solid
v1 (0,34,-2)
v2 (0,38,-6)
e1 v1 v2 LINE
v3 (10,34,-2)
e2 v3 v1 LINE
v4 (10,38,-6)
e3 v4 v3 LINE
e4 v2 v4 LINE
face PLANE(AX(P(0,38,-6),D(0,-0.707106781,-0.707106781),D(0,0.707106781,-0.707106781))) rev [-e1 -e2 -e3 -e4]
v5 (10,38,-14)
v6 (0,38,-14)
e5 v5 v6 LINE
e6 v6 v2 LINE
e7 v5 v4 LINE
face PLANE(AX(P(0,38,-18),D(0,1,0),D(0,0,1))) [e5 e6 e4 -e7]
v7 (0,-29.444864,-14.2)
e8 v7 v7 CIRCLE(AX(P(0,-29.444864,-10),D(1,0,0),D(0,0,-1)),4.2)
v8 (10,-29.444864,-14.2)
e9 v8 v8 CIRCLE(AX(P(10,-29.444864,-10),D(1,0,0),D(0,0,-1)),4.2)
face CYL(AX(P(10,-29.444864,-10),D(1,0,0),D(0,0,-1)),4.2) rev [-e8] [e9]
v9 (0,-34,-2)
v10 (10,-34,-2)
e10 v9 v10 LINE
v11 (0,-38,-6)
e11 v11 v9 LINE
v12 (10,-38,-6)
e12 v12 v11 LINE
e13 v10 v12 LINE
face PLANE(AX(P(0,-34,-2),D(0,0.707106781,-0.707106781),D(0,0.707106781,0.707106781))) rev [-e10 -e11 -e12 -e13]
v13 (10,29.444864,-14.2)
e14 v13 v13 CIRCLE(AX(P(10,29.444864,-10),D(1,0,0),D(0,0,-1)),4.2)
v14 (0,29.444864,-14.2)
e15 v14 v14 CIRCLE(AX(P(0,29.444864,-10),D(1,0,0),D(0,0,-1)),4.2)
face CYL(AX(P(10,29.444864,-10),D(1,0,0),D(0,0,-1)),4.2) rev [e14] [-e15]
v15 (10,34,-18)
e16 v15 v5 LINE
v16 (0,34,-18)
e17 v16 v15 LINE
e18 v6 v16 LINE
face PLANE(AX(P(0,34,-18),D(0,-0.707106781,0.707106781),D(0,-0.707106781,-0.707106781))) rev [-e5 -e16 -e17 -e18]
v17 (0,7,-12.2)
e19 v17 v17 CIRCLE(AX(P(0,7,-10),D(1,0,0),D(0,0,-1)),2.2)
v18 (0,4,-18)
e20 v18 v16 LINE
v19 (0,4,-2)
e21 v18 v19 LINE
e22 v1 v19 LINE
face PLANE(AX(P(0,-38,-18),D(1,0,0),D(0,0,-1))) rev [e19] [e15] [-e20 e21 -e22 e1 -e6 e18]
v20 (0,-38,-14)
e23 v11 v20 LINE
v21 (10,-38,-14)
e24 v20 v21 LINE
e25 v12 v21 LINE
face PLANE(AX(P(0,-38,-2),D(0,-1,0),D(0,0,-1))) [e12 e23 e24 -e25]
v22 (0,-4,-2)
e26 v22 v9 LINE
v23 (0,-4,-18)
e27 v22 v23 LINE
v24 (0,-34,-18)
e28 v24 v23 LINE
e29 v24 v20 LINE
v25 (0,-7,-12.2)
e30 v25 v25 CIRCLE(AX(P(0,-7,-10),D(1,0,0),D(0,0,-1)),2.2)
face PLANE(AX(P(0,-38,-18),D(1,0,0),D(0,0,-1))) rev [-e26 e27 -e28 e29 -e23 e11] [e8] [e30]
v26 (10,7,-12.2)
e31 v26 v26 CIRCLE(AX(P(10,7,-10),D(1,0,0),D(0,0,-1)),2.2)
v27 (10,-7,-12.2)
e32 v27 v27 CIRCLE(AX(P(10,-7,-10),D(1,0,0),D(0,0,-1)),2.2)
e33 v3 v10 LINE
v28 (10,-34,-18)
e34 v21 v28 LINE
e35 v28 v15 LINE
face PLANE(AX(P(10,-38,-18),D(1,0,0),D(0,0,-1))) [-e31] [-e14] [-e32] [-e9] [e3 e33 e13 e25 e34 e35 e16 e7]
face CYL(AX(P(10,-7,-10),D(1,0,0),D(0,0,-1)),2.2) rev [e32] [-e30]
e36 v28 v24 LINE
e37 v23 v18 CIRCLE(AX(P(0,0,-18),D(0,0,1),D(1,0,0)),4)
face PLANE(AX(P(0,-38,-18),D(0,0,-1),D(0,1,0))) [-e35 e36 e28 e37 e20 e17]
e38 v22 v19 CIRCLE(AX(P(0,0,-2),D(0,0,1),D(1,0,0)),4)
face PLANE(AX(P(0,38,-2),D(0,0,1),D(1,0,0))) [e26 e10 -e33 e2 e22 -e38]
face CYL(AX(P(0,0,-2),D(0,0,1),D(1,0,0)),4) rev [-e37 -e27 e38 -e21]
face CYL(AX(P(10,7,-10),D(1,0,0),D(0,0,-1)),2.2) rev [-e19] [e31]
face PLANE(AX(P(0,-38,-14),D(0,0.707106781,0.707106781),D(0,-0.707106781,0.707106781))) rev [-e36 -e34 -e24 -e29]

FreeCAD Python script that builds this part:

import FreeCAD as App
import Part
import Sketcher


def edges_at(feature, points):
    """Names of the edges that pass closest to the given points."""
    edges = feature.Shape.Edges
    near = lambda p: min(range(len(edges)), key=lambda i: edges[i].distToShape(Part.Vertex(*p))[0])
    return sorted({f"Edge{near(p) + 1}" for p in points})

doc = App.newDocument("Part")
body = doc.addObject("PartDesign::Body", "Body")

# Sketch on YZ plane
sketch1 = body.newObject("Sketcher::SketchObject", "Sketch")
sketch1.AttachmentSupport = (doc.getObject("YZ_Plane"), [""])
sketch1.MapMode = "FlatFace"
sketch1.AttachmentOffset = App.Placement(App.Vector(0, 0, 10), App.Rotation())
sketch1.addGeometry([
    Part.LineSegment(App.Vector(38, -2, 0), App.Vector(-38, -2, 0)),
    Part.LineSegment(App.Vector(-38, -2, 0), App.Vector(-38, -18, 0)),
    Part.LineSegment(App.Vector(-38, -18, 0), App.Vector(38, -18, 0)),
    Part.LineSegment(App.Vector(38, -18, 0), App.Vector(38, -2, 0)),
], False)
sketch1.addConstraint([
    Sketcher.Constraint("Coincident", 0, 2, 1, 1),
    Sketcher.Constraint("Coincident", 1, 2, 2, 1),
    Sketcher.Constraint("Coincident", 2, 2, 3, 1),
    Sketcher.Constraint("Coincident", 3, 2, 0, 1),
    Sketcher.Constraint("Horizontal", 0),
    Sketcher.Constraint("Vertical", 1),
    Sketcher.Constraint("Horizontal", 2),
    Sketcher.Constraint("Vertical", 3),
    Sketcher.Constraint("DistanceX", 0, 2, 0, 1, 76.0),
    Sketcher.Constraint("DistanceY", 1, 2, 1, 1, 16.0),
    Sketcher.Constraint("DistanceX", 0, 2, -1, 1, 38.0),
    Sketcher.Constraint("DistanceY", 0, 2, -1, 1, 2.0),
])
pad1 = body.newObject("PartDesign::Pad", "Pad")
pad1.Profile = sketch1
pad1.Length = 10
pad1.Reversed = True

# Sketch on YZ plane
sketch2 = body.newObject("Sketcher::SketchObject", "Sketch001")
sketch2.AttachmentSupport = (doc.getObject("YZ_Plane"), [""])
sketch2.MapMode = "FlatFace"
sketch2.AttachmentOffset = App.Placement(App.Vector(0, 0, 10), App.Rotation())
sketch2.addGeometry(Part.Circle(App.Vector(-7, -10, 0), App.Vector(0, 0, 1), 2.2), False)
sketch2.addConstraint([
    Sketcher.Constraint("Diameter", 0, 4.4),
    Sketcher.Constraint("DistanceX", 0, 3, -1, 1, 7.0),
    Sketcher.Constraint("DistanceY", 0, 3, -1, 1, 10.0),
])
doc.recompute()
hole = body.newObject("PartDesign::Hole", "Hole")
hole.Profile = sketch2
hole.ThreadType = "None"
hole.Diameter = 4.4
hole.DepthType = "ThroughAll"

# Sketch on YZ plane
sketch3 = body.newObject("Sketcher::SketchObject", "Sketch002")
sketch3.AttachmentSupport = (doc.getObject("YZ_Plane"), [""])
sketch3.MapMode = "FlatFace"
sketch3.AttachmentOffset = App.Placement(App.Vector(0, 0, 10), App.Rotation())
sketch3.addGeometry(Part.Circle(App.Vector(7, -10, 0), App.Vector(0, 0, 1), 2.2), False)
sketch3.addConstraint([
    Sketcher.Constraint("Diameter", 0, 4.4),
    Sketcher.Constraint("DistanceX", -1, 1, 0, 3, 7.0),
    Sketcher.Constraint("DistanceY", 0, 3, -1, 1, 10.0),
])
doc.recompute()
hole2 = body.newObject("PartDesign::Hole", "Hole001")
hole2.Profile = sketch3
hole2.ThreadType = "None"
hole2.Diameter = 4.4
hole2.DepthType = "ThroughAll"

# Sketch on YZ plane
sketch4 = body.newObject("Sketcher::SketchObject", "Sketch003")
sketch4.AttachmentSupport = (doc.getObject("YZ_Plane"), [""])
sketch4.MapMode = "FlatFace"
sketch4.AttachmentOffset = App.Placement(App.Vector(0, 0, 10), App.Rotation())
sketch4.addGeometry(Part.Circle(App.Vector(-29.444864, -10, 0), App.Vector(0, 0, 1), 4.2), False)
sketch4.addConstraint([
    Sketcher.Constraint("Diameter", 0, 8.4),
    Sketcher.Constraint("DistanceY", 0, 3, -1, 1, 10.0),
    Sketcher.Constraint("DistanceX", 0, 3, -1, 1, 29.444864),
])
doc.recompute()
hole3 = body.newObject("PartDesign::Hole", "Hole002")
hole3.Profile = sketch4
hole3.ThreadType = "None"
hole3.Diameter = 8.4
hole3.DepthType = "ThroughAll"

# Sketch on YZ plane
sketch5 = body.newObject("Sketcher::SketchObject", "Sketch004")
sketch5.AttachmentSupport = (doc.getObject("YZ_Plane"), [""])
sketch5.MapMode = "FlatFace"
sketch5.AttachmentOffset = App.Placement(App.Vector(0, 0, 10), App.Rotation())
sketch5.addGeometry(Part.Circle(App.Vector(29.444864, -10, 0), App.Vector(0, 0, 1), 4.2), False)
sketch5.addConstraint([
    Sketcher.Constraint("Diameter", 0, 8.4),
    Sketcher.Constraint("DistanceY", 0, 3, -1, 1, 10.0),
    Sketcher.Constraint("DistanceX", -1, 1, 0, 3, 29.444864),
])
doc.recompute()
hole4 = body.newObject("PartDesign::Hole", "Hole003")
hole4.Profile = sketch5
hole4.ThreadType = "None"
hole4.Diameter = 8.4
hole4.DepthType = "ThroughAll"

# Sketch on XY plane
sketch6 = body.newObject("Sketcher::SketchObject", "Sketch005")
sketch6.AttachmentSupport = (doc.getObject("XY_Plane"), [""])
sketch6.MapMode = "FlatFace"
sketch6.AttachmentOffset = App.Placement(App.Vector(0, 0, -2), App.Rotation())
sketch6.addGeometry(Part.Circle(App.Vector(0, 0, 0), App.Vector(0, 0, 1), 4), False)
sketch6.addConstraint([
    Sketcher.Constraint("Coincident", 0, 3, -1, 1),
    Sketcher.Constraint("Diameter", 0, 8.0),
])
doc.recompute()
hole5 = body.newObject("PartDesign::Hole", "Hole004")
hole5.Profile = sketch6
hole5.ThreadType = "None"
hole5.Diameter = 8
hole5.DepthType = "ThroughAll"
doc.recompute()

chamfer = body.newObject("PartDesign::Chamfer", "Chamfer")
chamfer.Base = (hole5, edges_at(hole5, [(5, 38, -2)]))
chamfer.Size = 4
doc.recompute()

chamfer2 = body.newObject("PartDesign::Chamfer", "Chamfer001")
chamfer2.Base = (chamfer, edges_at(chamfer, [(5, 38, -18)]))
chamfer2.Size = 4
doc.recompute()

chamfer3 = body.newObject("PartDesign::Chamfer", "Chamfer002")
chamfer3.Base = (chamfer2, edges_at(chamfer2, [(5, -38, -18)]))
chamfer3.Size = 4
doc.recompute()

chamfer4 = body.newObject("PartDesign::Chamfer", "Chamfer003")
chamfer4.Base = (chamfer3, edges_at(chamfer3, [(5, -38, -2)]))
chamfer4.Size = 4

doc.recompute()
